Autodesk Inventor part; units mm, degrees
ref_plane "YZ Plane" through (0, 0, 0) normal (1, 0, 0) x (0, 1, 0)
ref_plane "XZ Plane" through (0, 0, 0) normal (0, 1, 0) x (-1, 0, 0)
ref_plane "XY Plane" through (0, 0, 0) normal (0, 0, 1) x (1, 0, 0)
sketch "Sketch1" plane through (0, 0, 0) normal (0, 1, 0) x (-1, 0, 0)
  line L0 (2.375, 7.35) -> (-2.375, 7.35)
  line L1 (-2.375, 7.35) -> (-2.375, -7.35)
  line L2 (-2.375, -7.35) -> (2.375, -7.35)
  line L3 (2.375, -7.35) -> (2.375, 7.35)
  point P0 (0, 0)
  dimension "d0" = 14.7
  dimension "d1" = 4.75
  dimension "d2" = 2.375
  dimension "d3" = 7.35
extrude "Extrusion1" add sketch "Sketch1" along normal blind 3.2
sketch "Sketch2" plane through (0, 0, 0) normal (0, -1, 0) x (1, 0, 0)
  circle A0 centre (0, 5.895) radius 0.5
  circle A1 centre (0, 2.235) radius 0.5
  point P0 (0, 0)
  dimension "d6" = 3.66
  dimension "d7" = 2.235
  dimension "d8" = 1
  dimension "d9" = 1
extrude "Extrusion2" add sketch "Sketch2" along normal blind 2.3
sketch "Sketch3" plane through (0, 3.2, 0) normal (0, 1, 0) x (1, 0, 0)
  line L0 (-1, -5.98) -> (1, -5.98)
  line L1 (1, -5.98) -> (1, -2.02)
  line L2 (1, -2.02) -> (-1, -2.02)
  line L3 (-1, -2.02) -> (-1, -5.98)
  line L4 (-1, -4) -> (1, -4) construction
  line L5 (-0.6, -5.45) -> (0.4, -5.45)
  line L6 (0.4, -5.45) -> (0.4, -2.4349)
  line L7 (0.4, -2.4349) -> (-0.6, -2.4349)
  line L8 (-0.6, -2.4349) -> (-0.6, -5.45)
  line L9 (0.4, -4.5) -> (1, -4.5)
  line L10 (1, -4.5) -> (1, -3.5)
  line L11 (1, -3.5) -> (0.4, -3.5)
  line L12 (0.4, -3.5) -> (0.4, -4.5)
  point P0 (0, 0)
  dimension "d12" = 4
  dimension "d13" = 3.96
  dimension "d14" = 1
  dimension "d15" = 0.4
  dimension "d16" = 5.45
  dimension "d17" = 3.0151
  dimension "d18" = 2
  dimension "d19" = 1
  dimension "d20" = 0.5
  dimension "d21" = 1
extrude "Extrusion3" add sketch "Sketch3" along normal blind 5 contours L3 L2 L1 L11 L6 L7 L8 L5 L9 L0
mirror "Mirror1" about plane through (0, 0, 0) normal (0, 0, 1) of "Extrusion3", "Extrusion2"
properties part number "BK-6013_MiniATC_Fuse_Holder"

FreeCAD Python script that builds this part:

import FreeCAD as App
import Part
import Sketcher

V = App.Vector
Q = App.Units.Quantity


def add_polygon(sketch, points):
    """Adds a closed chain of lines whose ends are joined by coincident constraints."""
    first, n = sketch.GeometryCount, len(points)
    for a, b in zip(points, points[1:] + points[:1]):
        sketch.addGeometry(Part.LineSegment(App.Vector(*a, 0), App.Vector(*b, 0)), False)
    for i in range(n):
        sketch.addConstraint(Sketcher.Constraint("Coincident", first + i, 2, first + (i + 1) % n, 1))

doc = App.newDocument("Part")
params = doc.addObject("Spreadsheet::Sheet", "Params")
for row, (alias, value) in enumerate([
    ("sketch1_height", "14.7 mm"),
    ("sketch1_width", "4.75 mm"),
    ("pad1_length", "3.2 mm"),
    ("sketch2_diameter", "1 mm"),
    ("pad2_length", "2.3 mm"),
    ("sketch3_width", "2 mm"),
    ("sketch3_width2", "1 mm"),
    ("sketch3_height", "3.96 mm"),
    ("sketch3_height2", "0.95 mm"),
    ("pad3_length", "5 mm"),
], start=1):
    params.set(f"A{row}", alias)
    params.set(f"B{row}", "=" + value)
    params.setAlias(f"B{row}", alias)

body = doc.addObject("PartDesign::Body", "Body")

sketch1 = body.newObject("Sketcher::SketchObject", "Sketch")
sketch1.AttachmentSupport = (doc.getObject("XZ_Plane"), [""])
sketch1.MapMode = "FlatFace"
add_polygon(sketch1, [(-2.4, -7.3), (-2.4, 7.3), (2.4, 7.3), (2.4, -7.3)])
sketch1.addConstraint(Sketcher.Constraint("Vertical", 0))
sketch1.addConstraint(Sketcher.Constraint("Horizontal", 1))
sketch1.addConstraint(Sketcher.Constraint("Vertical", 2))
sketch1.addConstraint(Sketcher.Constraint("Horizontal", 3))
sketch1.addConstraint(Sketcher.Constraint("Symmetric", 0, 2, 2, 2, -1, 1))
sketch1.addConstraint(Sketcher.Constraint("DistanceY", 0, 1, 0, 2, Q("14.7 mm")))
sketch1.addConstraint(Sketcher.Constraint("DistanceX", 1, 1, 1, 2, Q("4.75 mm")))
sketch1.setExpression("Constraints[9]", "Params.sketch1_height")
sketch1.setExpression("Constraints[10]", "Params.sketch1_width")
pad1 = body.newObject("PartDesign::Pad", "Pad")
pad1.Profile = sketch1
pad1.setExpression("Length", "Params.pad1_length")
pad1.Reversed = True

sketch2 = body.newObject("Sketcher::SketchObject", "Sketch001")
sketch2.AttachmentSupport = (doc.getObject("XZ_Plane"), [""])
sketch2.MapMode = "FlatFace"
sketch2.addGeometry(Part.Circle(V(0, 5.9, 0), V(0, 0, 1), 0.5), False)
sketch2.addGeometry(Part.Circle(V(0, 2.2, 0), V(0, 0, 1), 0.5), False)
sketch2.addConstraint(Sketcher.Constraint("Equal", 0, 1))
sketch2.addConstraint(Sketcher.Constraint("PointOnObject", 0, 3, -2))
sketch2.addConstraint(Sketcher.Constraint("PointOnObject", 1, 3, -2))
sketch2.addConstraint(Sketcher.Constraint("Diameter", 0, Q("1 mm")))
sketch2.addConstraint(Sketcher.Constraint("DistanceY", 1, 3, 0, 3, Q("3.66 mm")))
sketch2.addConstraint(Sketcher.Constraint("DistanceY", -1, 1, 1, 3, Q("2.235 mm")))
sketch2.setExpression("Constraints[3]", "Params.sketch2_diameter")
pad2 = body.newObject("PartDesign::Pad", "Pad001")
pad2.Profile = sketch2
pad2.setExpression("Length", "Params.pad2_length")

sketch3 = body.newObject("Sketcher::SketchObject", "Sketch002")
sketch3.AttachmentSupport = (doc.getObject("XZ_Plane"), [""])
sketch3.MapMode = "FlatFace"
sketch3.AttachmentOffset = App.Placement(V(0, 0, -3.2), App.Rotation())
add_polygon(sketch3, [(-1, 2), (-1, 6), (1, 6), (1, 4.5), (0.4, 4.5), (0.4, 5.5), (-0.6, 5.5), (-0.6, 2.4), (0.4, 2.4), (0.4, 3.5), (1, 3.5), (1, 2)])
sketch3.addConstraint(Sketcher.Constraint("Vertical", 0))
sketch3.addConstraint(Sketcher.Constraint("Horizontal", 1))
sketch3.addConstraint(Sketcher.Constraint("Vertical", 2))
sketch3.addConstraint(Sketcher.Constraint("Horizontal", 3))
sketch3.addConstraint(Sketcher.Constraint("Vertical", 4))
sketch3.addConstraint(Sketcher.Constraint("Horizontal", 5))
sketch3.addConstraint(Sketcher.Constraint("Vertical", 6))
sketch3.addConstraint(Sketcher.Constraint("Horizontal", 7))
sketch3.addConstraint(Sketcher.Constraint("Vertical", 8))
sketch3.addConstraint(Sketcher.Constraint("Horizontal", 9))
sketch3.addConstraint(Sketcher.Constraint("Vertical", 10))
sketch3.addConstraint(Sketcher.Constraint("Horizontal", 11))
sketch3.addConstraint(Sketcher.Constraint("Vertical", 4, 2, 7, 2))
sketch3.addConstraint(Sketcher.Constraint("Vertical", 2, 2, 9, 2))
sketch3.addConstraint(Sketcher.Constraint("Equal", 2, 10))
sketch3.addConstraint(Sketcher.Constraint("DistanceX", 1, 1, 1, 2, Q("2 mm")))
sketch3.addConstraint(Sketcher.Constraint("DistanceX", 5, 2, 5, 1, Q("1 mm")))
sketch3.addConstraint(Sketcher.Constraint("DistanceX", 0, 2, -1, 1, Q("1 mm")))
sketch3.addConstraint(Sketcher.Constraint("DistanceY", 8, 2, 3, 2, Q("1 mm")))
sketch3.addConstraint(Sketcher.Constraint("DistanceY", 0, 1, 0, 2, Q("3.96 mm")))
sketch3.addConstraint(Sketcher.Constraint("DistanceX", -1, 1, 3, 2, Q("0.4 mm")))
sketch3.addConstraint(Sketcher.Constraint("DistanceY", 6, 2, 6, 1, Q("3.015 mm")))
sketch3.addConstraint(Sketcher.Constraint("DistanceY", -1, 1, 4, 2, Q("5.45 mm")))
sketch3.addConstraint(Sketcher.Constraint("DistanceY", 4, 1, 4, 2, Q("0.95 mm")))
sketch3.setExpression("Constraints[27]", "Params.sketch3_width")
sketch3.setExpression("Constraints[28]", "Params.sketch3_width2")
sketch3.setExpression("Constraints[31]", "Params.sketch3_height")
sketch3.setExpression("Constraints[35]", "Params.sketch3_height2")
pad3 = body.newObject("PartDesign::Pad", "Pad002")
pad3.Profile = sketch3
pad3.setExpression("Length", "Params.pad3_length")
pad3.Reversed = True
doc.recompute()

mirrored = body.newObject("PartDesign::Mirrored", "Mirrored")
mirrored.Originals = [pad3, pad2]
mirrored.MirrorPlane = (doc.getObject("XY_Plane"), [""])
body.Tip = mirrored

doc.recompute()
